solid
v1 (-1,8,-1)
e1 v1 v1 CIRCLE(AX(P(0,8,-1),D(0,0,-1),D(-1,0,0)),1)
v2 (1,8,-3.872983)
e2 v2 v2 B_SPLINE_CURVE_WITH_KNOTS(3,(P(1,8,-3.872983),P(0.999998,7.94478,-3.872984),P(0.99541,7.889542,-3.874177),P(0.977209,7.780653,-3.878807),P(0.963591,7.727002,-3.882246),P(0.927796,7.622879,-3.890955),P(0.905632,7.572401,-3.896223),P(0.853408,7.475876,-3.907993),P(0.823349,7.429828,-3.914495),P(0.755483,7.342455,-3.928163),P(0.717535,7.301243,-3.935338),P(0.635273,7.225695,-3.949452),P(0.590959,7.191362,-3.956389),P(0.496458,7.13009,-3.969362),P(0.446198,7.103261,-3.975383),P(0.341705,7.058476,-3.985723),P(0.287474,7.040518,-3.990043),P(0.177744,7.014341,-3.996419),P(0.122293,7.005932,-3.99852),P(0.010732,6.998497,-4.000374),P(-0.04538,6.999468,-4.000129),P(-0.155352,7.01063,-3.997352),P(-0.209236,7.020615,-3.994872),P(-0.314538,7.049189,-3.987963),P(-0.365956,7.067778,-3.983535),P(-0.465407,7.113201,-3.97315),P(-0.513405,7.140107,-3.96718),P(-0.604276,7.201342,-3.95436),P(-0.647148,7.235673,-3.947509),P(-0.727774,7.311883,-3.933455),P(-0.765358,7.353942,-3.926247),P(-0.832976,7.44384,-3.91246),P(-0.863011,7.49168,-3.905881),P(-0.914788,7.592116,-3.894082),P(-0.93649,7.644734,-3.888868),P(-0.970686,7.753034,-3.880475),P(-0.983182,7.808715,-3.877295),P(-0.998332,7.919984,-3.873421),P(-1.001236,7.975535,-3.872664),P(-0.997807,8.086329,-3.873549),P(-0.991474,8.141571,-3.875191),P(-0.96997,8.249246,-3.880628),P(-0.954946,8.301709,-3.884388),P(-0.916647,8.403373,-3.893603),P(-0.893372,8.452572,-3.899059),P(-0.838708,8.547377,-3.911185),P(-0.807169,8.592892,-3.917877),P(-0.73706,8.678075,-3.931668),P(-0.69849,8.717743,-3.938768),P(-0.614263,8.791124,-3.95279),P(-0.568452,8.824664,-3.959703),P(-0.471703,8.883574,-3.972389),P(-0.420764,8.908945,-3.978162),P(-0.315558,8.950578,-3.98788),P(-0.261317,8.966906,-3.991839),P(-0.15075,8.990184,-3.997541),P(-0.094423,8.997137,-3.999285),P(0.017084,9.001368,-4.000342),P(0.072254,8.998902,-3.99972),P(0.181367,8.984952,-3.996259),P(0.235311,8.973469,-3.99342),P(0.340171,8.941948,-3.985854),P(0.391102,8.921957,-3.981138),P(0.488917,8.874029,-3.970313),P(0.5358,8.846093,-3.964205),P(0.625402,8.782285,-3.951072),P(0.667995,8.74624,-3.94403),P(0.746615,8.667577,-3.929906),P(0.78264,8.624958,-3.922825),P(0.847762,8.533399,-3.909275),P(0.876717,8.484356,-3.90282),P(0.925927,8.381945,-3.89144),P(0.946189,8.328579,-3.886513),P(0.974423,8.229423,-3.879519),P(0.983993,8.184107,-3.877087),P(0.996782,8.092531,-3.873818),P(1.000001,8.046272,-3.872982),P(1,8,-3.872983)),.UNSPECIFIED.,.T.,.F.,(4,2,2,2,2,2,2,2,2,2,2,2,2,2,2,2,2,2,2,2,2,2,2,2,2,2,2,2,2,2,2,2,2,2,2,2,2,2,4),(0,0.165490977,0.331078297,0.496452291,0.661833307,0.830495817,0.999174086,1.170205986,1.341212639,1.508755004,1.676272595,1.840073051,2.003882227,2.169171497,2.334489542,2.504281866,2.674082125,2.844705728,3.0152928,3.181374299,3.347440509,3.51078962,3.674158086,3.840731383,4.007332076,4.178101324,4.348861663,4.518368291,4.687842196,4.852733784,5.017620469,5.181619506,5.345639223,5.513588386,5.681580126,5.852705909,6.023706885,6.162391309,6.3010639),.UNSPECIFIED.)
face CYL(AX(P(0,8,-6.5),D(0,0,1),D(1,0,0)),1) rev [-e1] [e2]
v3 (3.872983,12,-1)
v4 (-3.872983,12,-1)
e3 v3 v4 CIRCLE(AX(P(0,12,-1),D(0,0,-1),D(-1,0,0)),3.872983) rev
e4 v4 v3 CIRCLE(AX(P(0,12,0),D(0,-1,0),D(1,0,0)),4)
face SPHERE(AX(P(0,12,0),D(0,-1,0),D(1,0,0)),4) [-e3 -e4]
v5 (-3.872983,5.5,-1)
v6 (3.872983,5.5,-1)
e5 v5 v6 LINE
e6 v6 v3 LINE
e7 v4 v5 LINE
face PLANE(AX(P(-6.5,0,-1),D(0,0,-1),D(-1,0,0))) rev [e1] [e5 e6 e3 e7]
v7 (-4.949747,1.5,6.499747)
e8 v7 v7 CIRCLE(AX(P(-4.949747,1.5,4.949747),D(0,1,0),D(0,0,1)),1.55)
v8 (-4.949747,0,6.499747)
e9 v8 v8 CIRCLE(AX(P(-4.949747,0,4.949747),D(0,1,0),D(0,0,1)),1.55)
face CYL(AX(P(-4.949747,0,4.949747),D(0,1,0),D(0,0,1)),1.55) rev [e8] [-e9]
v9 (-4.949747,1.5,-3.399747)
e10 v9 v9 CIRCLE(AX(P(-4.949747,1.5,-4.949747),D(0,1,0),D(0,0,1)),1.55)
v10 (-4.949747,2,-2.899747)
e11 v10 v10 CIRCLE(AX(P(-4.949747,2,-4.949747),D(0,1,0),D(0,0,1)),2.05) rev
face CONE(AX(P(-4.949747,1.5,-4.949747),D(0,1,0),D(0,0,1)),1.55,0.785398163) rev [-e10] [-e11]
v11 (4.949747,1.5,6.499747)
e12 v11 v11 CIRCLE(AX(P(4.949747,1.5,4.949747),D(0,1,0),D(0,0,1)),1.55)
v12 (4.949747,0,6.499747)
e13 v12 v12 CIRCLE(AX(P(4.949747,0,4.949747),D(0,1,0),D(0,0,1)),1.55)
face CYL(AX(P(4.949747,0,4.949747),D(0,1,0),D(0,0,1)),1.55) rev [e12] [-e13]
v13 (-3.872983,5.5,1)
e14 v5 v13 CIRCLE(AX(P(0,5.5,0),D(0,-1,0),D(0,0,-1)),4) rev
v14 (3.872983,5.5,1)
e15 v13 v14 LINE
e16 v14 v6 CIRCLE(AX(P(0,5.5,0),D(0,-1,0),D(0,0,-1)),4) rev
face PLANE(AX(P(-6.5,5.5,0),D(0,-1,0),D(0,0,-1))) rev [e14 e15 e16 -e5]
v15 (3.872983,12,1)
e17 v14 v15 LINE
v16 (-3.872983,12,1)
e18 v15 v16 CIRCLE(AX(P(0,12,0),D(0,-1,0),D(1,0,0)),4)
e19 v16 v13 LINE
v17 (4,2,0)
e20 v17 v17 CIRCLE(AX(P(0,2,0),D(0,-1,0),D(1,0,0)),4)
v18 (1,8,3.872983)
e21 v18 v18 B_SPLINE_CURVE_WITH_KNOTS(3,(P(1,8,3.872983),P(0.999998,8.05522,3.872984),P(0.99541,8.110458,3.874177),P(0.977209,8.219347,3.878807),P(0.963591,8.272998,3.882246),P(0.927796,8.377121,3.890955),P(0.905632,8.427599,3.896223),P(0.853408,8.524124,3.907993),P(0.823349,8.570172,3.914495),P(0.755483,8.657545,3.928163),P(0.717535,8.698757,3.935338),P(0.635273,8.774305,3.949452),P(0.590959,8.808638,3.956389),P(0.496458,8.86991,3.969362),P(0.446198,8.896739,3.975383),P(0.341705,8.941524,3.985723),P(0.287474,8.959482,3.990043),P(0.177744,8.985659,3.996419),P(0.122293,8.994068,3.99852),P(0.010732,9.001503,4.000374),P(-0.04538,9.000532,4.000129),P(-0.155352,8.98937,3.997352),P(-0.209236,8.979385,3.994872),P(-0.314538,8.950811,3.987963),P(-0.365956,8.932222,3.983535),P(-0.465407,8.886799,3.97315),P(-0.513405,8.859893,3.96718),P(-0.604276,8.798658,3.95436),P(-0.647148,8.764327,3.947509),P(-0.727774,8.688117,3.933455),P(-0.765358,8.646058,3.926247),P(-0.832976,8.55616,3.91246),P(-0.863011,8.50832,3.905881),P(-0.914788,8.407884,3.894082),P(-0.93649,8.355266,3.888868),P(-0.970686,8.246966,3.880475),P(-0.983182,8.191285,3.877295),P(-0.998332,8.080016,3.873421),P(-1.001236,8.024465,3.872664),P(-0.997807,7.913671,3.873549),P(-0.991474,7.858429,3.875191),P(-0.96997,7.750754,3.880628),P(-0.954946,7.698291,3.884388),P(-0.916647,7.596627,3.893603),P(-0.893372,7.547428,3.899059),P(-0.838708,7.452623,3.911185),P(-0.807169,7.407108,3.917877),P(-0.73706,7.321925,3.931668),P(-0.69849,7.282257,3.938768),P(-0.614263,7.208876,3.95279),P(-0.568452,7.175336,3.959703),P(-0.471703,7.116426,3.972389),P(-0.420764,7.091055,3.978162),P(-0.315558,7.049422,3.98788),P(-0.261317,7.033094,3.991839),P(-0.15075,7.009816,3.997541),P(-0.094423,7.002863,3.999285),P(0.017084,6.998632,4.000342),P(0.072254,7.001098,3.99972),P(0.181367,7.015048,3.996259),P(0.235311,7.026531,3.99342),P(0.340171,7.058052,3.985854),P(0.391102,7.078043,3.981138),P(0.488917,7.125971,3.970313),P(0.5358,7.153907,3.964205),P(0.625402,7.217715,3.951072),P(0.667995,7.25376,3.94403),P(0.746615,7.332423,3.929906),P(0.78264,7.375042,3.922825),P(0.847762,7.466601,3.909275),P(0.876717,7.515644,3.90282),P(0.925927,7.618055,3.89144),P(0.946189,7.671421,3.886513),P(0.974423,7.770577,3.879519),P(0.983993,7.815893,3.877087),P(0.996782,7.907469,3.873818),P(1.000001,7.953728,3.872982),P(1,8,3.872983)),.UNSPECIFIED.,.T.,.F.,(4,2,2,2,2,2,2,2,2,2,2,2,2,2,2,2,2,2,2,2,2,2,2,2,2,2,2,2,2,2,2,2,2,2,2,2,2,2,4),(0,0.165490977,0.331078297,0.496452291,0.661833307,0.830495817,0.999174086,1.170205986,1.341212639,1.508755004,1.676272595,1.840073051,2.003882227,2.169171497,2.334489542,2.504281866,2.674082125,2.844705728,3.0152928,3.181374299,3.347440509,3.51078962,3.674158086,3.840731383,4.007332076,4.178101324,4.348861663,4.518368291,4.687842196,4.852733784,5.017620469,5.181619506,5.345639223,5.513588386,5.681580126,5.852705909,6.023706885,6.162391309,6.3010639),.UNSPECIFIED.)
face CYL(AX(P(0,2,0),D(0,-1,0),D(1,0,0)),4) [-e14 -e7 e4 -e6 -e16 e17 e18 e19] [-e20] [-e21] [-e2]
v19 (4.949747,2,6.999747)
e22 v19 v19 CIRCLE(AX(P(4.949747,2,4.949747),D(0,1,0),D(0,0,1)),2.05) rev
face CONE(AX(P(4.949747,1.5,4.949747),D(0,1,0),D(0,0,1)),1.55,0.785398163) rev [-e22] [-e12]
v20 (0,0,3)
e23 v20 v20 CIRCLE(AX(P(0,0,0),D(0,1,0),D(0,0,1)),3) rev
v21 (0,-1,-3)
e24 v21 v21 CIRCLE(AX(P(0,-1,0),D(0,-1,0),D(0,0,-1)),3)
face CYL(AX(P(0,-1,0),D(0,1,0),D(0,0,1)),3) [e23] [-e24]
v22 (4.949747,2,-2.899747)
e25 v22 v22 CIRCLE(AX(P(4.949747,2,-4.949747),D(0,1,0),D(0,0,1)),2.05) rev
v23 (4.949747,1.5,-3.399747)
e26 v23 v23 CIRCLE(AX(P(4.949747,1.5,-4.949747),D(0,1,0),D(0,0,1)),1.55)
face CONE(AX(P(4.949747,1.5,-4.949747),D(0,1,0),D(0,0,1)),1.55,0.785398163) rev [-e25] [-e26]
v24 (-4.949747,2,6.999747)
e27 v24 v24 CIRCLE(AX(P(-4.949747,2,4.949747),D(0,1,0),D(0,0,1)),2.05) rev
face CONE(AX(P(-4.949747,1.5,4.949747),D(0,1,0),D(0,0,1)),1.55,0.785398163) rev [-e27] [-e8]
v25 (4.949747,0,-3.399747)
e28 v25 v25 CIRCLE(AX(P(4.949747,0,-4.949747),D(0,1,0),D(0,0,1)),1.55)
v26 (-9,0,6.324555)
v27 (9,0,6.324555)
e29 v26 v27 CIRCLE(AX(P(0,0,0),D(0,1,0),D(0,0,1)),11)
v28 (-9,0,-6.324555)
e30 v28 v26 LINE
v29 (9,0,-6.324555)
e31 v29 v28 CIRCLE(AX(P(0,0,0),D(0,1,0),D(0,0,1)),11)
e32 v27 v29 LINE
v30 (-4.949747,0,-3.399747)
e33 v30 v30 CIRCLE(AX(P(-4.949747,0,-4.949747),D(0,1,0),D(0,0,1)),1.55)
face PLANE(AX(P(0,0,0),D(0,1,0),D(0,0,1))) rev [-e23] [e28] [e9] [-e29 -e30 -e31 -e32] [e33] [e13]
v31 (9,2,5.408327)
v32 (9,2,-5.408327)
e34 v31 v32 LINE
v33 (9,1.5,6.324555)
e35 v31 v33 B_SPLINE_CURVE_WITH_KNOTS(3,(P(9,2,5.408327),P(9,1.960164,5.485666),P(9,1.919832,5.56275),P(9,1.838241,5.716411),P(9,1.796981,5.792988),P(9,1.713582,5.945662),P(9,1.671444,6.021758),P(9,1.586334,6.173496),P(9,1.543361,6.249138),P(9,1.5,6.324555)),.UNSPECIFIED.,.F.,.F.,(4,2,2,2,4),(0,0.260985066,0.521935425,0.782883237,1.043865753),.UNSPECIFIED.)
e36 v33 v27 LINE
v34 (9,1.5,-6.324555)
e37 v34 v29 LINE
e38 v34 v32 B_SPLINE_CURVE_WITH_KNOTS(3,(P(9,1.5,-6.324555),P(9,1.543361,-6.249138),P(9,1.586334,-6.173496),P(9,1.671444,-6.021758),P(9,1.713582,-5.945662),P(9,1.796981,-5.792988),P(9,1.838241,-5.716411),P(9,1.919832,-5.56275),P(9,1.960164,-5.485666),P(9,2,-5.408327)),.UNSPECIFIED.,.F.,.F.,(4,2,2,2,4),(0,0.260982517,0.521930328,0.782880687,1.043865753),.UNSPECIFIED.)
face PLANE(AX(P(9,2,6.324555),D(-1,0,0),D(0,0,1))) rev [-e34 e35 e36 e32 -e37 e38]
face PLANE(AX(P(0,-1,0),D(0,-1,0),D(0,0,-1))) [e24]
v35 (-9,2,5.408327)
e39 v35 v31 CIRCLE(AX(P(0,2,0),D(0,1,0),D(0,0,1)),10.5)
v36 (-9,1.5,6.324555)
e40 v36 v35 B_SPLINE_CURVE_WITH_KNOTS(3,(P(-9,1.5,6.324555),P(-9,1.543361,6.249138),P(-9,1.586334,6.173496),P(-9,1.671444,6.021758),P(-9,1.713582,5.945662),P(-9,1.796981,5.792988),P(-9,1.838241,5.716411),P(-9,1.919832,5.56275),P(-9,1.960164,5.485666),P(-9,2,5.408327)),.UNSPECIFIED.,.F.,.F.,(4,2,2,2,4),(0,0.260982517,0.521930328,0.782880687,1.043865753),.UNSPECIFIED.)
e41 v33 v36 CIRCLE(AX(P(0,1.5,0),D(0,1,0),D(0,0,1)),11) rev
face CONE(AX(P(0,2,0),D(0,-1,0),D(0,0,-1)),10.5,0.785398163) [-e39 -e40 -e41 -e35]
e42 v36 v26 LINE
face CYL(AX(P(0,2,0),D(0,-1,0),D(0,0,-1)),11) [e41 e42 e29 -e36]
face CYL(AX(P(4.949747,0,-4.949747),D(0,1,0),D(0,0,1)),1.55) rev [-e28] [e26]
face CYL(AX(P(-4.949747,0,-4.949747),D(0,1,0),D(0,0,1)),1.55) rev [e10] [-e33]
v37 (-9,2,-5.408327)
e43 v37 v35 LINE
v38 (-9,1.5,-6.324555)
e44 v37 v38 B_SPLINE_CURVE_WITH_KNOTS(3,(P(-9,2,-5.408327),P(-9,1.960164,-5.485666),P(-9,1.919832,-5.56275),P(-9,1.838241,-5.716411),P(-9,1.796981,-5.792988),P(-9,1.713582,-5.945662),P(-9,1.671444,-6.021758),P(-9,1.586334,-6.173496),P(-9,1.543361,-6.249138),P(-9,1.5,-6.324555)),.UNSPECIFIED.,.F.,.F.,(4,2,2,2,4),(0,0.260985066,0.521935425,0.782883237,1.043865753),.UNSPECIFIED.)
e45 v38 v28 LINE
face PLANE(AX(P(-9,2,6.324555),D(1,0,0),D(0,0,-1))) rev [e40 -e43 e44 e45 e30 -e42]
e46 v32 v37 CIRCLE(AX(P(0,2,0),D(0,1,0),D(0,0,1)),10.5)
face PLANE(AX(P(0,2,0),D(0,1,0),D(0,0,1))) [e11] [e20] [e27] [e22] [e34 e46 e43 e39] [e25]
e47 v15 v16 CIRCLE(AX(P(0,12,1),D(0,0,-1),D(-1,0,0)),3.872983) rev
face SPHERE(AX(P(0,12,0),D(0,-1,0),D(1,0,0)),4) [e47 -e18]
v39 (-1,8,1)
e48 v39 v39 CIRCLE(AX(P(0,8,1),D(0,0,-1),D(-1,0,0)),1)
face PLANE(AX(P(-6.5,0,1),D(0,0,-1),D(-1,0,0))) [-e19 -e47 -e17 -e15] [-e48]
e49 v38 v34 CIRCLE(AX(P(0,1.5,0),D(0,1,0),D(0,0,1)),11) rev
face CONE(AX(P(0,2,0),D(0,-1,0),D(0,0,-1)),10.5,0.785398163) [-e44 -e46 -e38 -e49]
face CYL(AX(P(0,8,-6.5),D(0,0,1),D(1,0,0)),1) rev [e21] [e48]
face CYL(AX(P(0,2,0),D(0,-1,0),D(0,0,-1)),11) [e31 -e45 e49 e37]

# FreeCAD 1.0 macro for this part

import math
import FreeCAD as App
import Part
import Sketcher
from FreeCAD import Vector


def edges_at(feature, points):
    """Names of the edges that pass closest to the given points."""
    edges = feature.Shape.Edges
    near = lambda p: min(range(len(edges)), key=lambda i: edges[i].distToShape(Part.Vertex(*p))[0])
    return sorted({f"Edge{near(p) + 1}" for p in points})

doc = App.newDocument("Part")
body = doc.addObject("PartDesign::Body", "Body")

sketch1 = body.newObject("Sketcher::SketchObject", "Sketch")
sketch1.AttachmentSupport = (doc.getObject("XZ_Plane"), [""])
sketch1.MapMode = "FlatFace"
sketch1.addGeometry(Part.LineSegment(Vector(-9, -6, 0), Vector(-9, 6, 0)), False)
sketch1.addGeometry(Part.ArcOfCircle(Part.Circle(Vector(0, 0, 0), Vector(0, 0, 1), 11), math.radians(35), math.radians(145)), False)
sketch1.addGeometry(Part.LineSegment(Vector(9, 6, 0), Vector(9, -6, 0)), False)
sketch1.addGeometry(Part.ArcOfCircle(Part.Circle(Vector(0, 0, 0), Vector(0, 0, 1), 11), math.radians(-145), math.radians(-35)), False)
sketch1.addConstraint(Sketcher.Constraint("Coincident", 0, 2, 1, 2))
sketch1.addConstraint(Sketcher.Constraint("Coincident", 1, 1, 2, 1))
sketch1.addConstraint(Sketcher.Constraint("Coincident", 2, 2, 3, 2))
sketch1.addConstraint(Sketcher.Constraint("Coincident", 3, 1, 0, 1))
sketch1.addConstraint(Sketcher.Constraint("Vertical", 0))
sketch1.addConstraint(Sketcher.Constraint("Vertical", 2))
sketch1.addConstraint(Sketcher.Constraint("Coincident", 1, 3, -1, 1))
sketch1.addConstraint(Sketcher.Constraint("Coincident", 3, 3, -1, 1))
sketch1.addConstraint(Sketcher.Constraint("Equal", 1, 3))
sketch1.addConstraint(Sketcher.Constraint("Horizontal", 0, 2, 1, 1))
sketch1.addConstraint(Sketcher.Constraint("Radius", 1, 11.0))
sketch1.addConstraint(Sketcher.Constraint("DistanceX", 0, 2, -1, 1, 9.0))
pad1 = body.newObject("PartDesign::Pad", "Pad")
pad1.Profile = sketch1
pad1.Length = 2
pad1.Reversed = True

sketch2 = body.newObject("Sketcher::SketchObject", "Sketch001")
sketch2.AttachmentSupport = (doc.getObject("XZ_Plane"), [""])
sketch2.MapMode = "FlatFace"
sketch2.AttachmentOffset = App.Placement(Vector(0, 0, -2), App.Rotation())
sketch2.addGeometry(Part.Circle(Vector(4.9, -4.9, 0), Vector(0, 0, 1), 1.6), False)
sketch2.addGeometry(Part.Circle(Vector(4.9, 4.9, 0), Vector(0, 0, 1), 1.6), False)
sketch2.addGeometry(Part.Circle(Vector(-4.9, 4.9, 0), Vector(0, 0, 1), 1.6), False)
sketch2.addGeometry(Part.Circle(Vector(-4.9, -4.9, 0), Vector(0, 0, 1), 1.6), False)
sketch2.addConstraint(Sketcher.Constraint("Equal", 0, 1))
sketch2.addConstraint(Sketcher.Constraint("Equal", 1, 2))
sketch2.addConstraint(Sketcher.Constraint("Equal", 2, 3))
sketch2.addConstraint(Sketcher.Constraint("Symmetric", 0, 3, 2, 3, -1, 1))
sketch2.addConstraint(Sketcher.Constraint("Symmetric", 1, 3, 3, 3, -1, 1))
sketch2.addConstraint(Sketcher.Constraint("Symmetric", 1, 3, 2, 3, -2))
sketch2.addConstraint(Sketcher.Constraint("Diameter", 0, 3.1))
sketch2.addConstraint(Sketcher.Constraint("DistanceX", -1, 1, 0, 3, 4.949747))
sketch2.addConstraint(Sketcher.Constraint("DistanceY", 0, 3, -1, 1, 4.949747))
pocket1 = body.newObject("PartDesign::Pocket", "Pocket")
pocket1.Profile = sketch2
pocket1.Type = "ThroughAll"
pocket1.Reversed = True
doc.recompute()

chamfer = body.newObject("PartDesign::Chamfer", "Chamfer")
chamfer.Base = (pocket1, edges_at(pocket1, [
    (0, 2, -11),
    (-4.95, 2, -6.5),
    (-4.95, 2, 3.4),
    (4.95, 2, 3.4),
    (4.95, 2, -6.5),
    (0, 2, 11),
]))
chamfer.Size = 0.5

sketch3 = body.newObject("Sketcher::SketchObject", "Sketch002")
sketch3.AttachmentSupport = (doc.getObject("XY_Plane"), [""])
sketch3.MapMode = "FlatFace"
sketch3.addGeometry(Part.LineSegment(Vector(0, 2, 0), Vector(4, 2, 0)), False)
sketch3.addGeometry(Part.LineSegment(Vector(4, 2, 0), Vector(4, 12, 0)), False)
sketch3.addGeometry(Part.ArcOfCircle(Part.Circle(Vector(0, 12, 0), Vector(0, 0, 1), 4), math.radians(0), math.radians(90)), False)
sketch3.addGeometry(Part.LineSegment(Vector(0, 16, 0), Vector(0, 2, 0)), False)
sketch3.addConstraint(Sketcher.Constraint("Coincident", 0, 2, 1, 1))
sketch3.addConstraint(Sketcher.Constraint("Tangent", 1, 2, 2, 1))
sketch3.addConstraint(Sketcher.Constraint("Coincident", 2, 2, 3, 1))
sketch3.addConstraint(Sketcher.Constraint("Coincident", 3, 2, 0, 1))
sketch3.addConstraint(Sketcher.Constraint("Horizontal", 0))
sketch3.addConstraint(Sketcher.Constraint("Vertical", 1))
sketch3.addConstraint(Sketcher.Constraint("Vertical", 3))
sketch3.addConstraint(Sketcher.Constraint("PointOnObject", 2, 3, -2))
sketch3.addConstraint(Sketcher.Constraint("PointOnObject", 2, 2, -2))
sketch3.addConstraint(Sketcher.Constraint("Radius", 2, 4.0))
sketch3.addConstraint(Sketcher.Constraint("DistanceY", 1, 1, 1, 2, 10.0))
sketch3.addConstraint(Sketcher.Constraint("DistanceY", -1, 1, 2, 3, 12.0))
revolution = body.newObject("PartDesign::Revolution", "Revolution")
revolution.Profile = sketch3
revolution.ReferenceAxis = (sketch3, ["V_Axis"])
revolution.Angle = 360

sketch4 = body.newObject("Sketcher::SketchObject", "Sketch003")
sketch4.AttachmentSupport = (doc.getObject("YZ_Plane"), [""])
sketch4.MapMode = "FlatFace"
sketch4.addGeometry(Part.LineSegment(Vector(19.6, 1, 0), Vector(5.5, 1, 0)), False)
sketch4.addGeometry(Part.LineSegment(Vector(5.5, 1, 0), Vector(5.5, -1, 0)), False)
sketch4.addGeometry(Part.LineSegment(Vector(5.5, -1, 0), Vector(19.6, -1, 0)), False)
sketch4.addGeometry(Part.LineSegment(Vector(19.6, -1, 0), Vector(19.6, 1, 0)), False)
sketch4.addConstraint(Sketcher.Constraint("Coincident", 0, 2, 1, 1))
sketch4.addConstraint(Sketcher.Constraint("Coincident", 1, 2, 2, 1))
sketch4.addConstraint(Sketcher.Constraint("Coincident", 2, 2, 3, 1))
sketch4.addConstraint(Sketcher.Constraint("Coincident", 3, 2, 0, 1))
sketch4.addConstraint(Sketcher.Constraint("Horizontal", 0))
sketch4.addConstraint(Sketcher.Constraint("Vertical", 1))
sketch4.addConstraint(Sketcher.Constraint("Horizontal", 2))
sketch4.addConstraint(Sketcher.Constraint("Vertical", 3))
sketch4.addConstraint(Sketcher.Constraint("DistanceY", 1, 2, 1, 1, 2.0))
sketch4.addConstraint(Sketcher.Constraint("DistanceY", -1, 1, 0, 2, 1.0))
sketch4.addConstraint(Sketcher.Constraint("DistanceX", -1, 1, 0, 2, 5.5))
sketch4.addConstraint(Sketcher.Constraint("DistanceX", 0, 2, 0, 1, 14.133756))
pocket2 = body.newObject("PartDesign::Pocket", "Pocket001")
pocket2.Profile = sketch4
pocket2.Length = 13
pocket2.Midplane = True

sketch5 = body.newObject("Sketcher::SketchObject", "Sketch004")
sketch5.AttachmentSupport = (doc.getObject("XY_Plane"), [""])
sketch5.MapMode = "FlatFace"
sketch5.addGeometry(Part.Circle(Vector(0, 8, 0), Vector(0, 0, 1), 1), False)
sketch5.addConstraint(Sketcher.Constraint("PointOnObject", 0, 3, -2))
sketch5.addConstraint(Sketcher.Constraint("Diameter", 0, 2.0))
sketch5.addConstraint(Sketcher.Constraint("DistanceY", -1, 1, 0, 3, 8.0))
pocket3 = body.newObject("PartDesign::Pocket", "Pocket002")
pocket3.Profile = sketch5
pocket3.Length = 13
pocket3.Midplane = True

sketch6 = body.newObject("Sketcher::SketchObject", "Sketch005")
sketch6.AttachmentSupport = (doc.getObject("XZ_Plane"), [""])
sketch6.MapMode = "FlatFace"
sketch6.addGeometry(Part.Circle(Vector(0, 0, 0), Vector(0, 0, 1), 3), False)
sketch6.addConstraint(Sketcher.Constraint("Coincident", 0, 3, -1, 1))
sketch6.addConstraint(Sketcher.Constraint("Diameter", 0, 6.0))
pad2 = body.newObject("PartDesign::Pad", "Pad001")
pad2.Profile = sketch6
pad2.Length = 1

doc.recompute()
